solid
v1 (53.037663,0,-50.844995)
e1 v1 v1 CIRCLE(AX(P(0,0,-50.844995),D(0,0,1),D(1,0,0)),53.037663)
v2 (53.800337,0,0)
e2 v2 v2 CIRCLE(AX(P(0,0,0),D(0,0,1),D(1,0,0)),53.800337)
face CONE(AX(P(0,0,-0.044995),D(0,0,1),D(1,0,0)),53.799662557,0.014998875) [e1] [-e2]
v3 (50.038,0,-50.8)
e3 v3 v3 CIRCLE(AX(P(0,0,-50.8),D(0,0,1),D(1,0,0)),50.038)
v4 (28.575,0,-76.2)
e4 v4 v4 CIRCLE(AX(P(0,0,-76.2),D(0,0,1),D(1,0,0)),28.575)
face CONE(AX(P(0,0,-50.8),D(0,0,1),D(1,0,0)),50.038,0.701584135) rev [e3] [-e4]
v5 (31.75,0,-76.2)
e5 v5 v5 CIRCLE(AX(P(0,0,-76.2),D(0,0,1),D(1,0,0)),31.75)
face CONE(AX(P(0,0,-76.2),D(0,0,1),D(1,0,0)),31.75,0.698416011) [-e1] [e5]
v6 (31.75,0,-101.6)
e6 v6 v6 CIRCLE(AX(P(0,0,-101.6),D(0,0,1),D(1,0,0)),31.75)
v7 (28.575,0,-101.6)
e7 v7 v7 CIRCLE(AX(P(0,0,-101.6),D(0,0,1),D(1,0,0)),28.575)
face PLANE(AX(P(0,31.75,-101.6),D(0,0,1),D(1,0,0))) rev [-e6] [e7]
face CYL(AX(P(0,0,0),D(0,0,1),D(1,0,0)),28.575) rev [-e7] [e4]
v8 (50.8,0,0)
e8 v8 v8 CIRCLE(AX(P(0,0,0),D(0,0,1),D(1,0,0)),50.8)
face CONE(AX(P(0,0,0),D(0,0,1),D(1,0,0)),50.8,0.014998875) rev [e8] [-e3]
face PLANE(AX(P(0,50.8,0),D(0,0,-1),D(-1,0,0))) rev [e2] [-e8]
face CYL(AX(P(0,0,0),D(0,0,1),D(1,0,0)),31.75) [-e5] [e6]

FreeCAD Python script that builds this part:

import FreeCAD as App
import Part
import Sketcher
from FreeCAD import Vector
Q = App.Units.Quantity

doc = App.newDocument("Part")
body = doc.addObject("PartDesign::Body", "Body")

# Sketch on YZ plane
sketch1 = doc.addObject("Sketcher::SketchObject", "Sketch")
body.addObject(sketch1)
sketch1.AttachmentSupport = (doc.YZ_Plane, [""])
sketch1.MapMode = "FlatFace"
sketch1.addGeometry(Part.LineSegment(Vector(50.8, 0, 0), Vector(50.038, -50.8, 0)), False)
sketch1.addGeometry(Part.LineSegment(Vector(50.038, -50.8, 0), Vector(28.575, -76.2, 0)), False)
sketch1.addGeometry(Part.LineSegment(Vector(28.575, -76.2, 0), Vector(28.575, -101.6, 0)), False)
sketch1.addGeometry(Part.LineSegment(Vector(28.575, -101.6, 0), Vector(31.75, -101.6, 0)), False)
sketch1.addGeometry(Part.LineSegment(Vector(31.75, -101.6, 0), Vector(31.75, -76.2, 0)), False)
sketch1.addGeometry(Part.LineSegment(Vector(31.75, -76.2, 0), Vector(53.038, -50.845, 0)), False)
sketch1.addGeometry(Part.LineSegment(Vector(53.038, -50.845, 0), Vector(53.8, -0.045, 0)), False)
sketch1.addGeometry(Part.LineSegment(Vector(53.8, -0.045, 0), Vector(53.8, 0, 0)), False)
sketch1.addGeometry(Part.LineSegment(Vector(53.8, 0, 0), Vector(50.8, 0, 0)), False)
sketch1.addConstraint(Sketcher.Constraint("Coincident", 0, 2, 1, 1))
sketch1.addConstraint(Sketcher.Constraint("Coincident", 1, 2, 2, 1))
sketch1.addConstraint(Sketcher.Constraint("Coincident", 2, 2, 3, 1))
sketch1.addConstraint(Sketcher.Constraint("Coincident", 3, 2, 4, 1))
sketch1.addConstraint(Sketcher.Constraint("Coincident", 4, 2, 5, 1))
sketch1.addConstraint(Sketcher.Constraint("Coincident", 5, 2, 6, 1))
sketch1.addConstraint(Sketcher.Constraint("Coincident", 6, 2, 7, 1))
sketch1.addConstraint(Sketcher.Constraint("Coincident", 7, 2, 8, 1))
sketch1.addConstraint(Sketcher.Constraint("Coincident", 8, 2, 0, 1))
sketch1.addConstraint(Sketcher.Constraint("Vertical", 2))
sketch1.addConstraint(Sketcher.Constraint("Horizontal", 3))
sketch1.addConstraint(Sketcher.Constraint("Vertical", 4))
sketch1.addConstraint(Sketcher.Constraint("Horizontal", 8))
sketch1.addConstraint(Sketcher.Constraint("PointOnObject", 7, 2, -1))
sketch1.addConstraint(Sketcher.Constraint("Parallel", 0, 6))
sketch1.addConstraint(Sketcher.Constraint("Parallel", 6, 7))
sketch1.addConstraint(Sketcher.Constraint("Horizontal", 1, 2, 4, 2))
sketch1.addConstraint(Sketcher.Constraint("Equal", 0, 6))
sketch1.addConstraint(Sketcher.Constraint("DistanceY", 2, 2, 2, 1, Q("1 in")))
sketch1.addConstraint(Sketcher.Constraint("DistanceY", 0, 2, -1, 1, Q("2 in")))
sketch1.addConstraint(Sketcher.Constraint("DistanceY", 1, 2, -1, 1, Q("3 in")))
sketch1.addConstraint(Sketcher.Constraint("DistanceX", -1, 1, 8, 2, Q("2 in")))
sketch1.addConstraint(Sketcher.Constraint("DistanceX", 3, 1, 3, 2, Q("0.125 in")))
sketch1.addConstraint(Sketcher.Constraint("DistanceX", -1, 1, 0, 2, Q("1.97 in")))
sketch1.addConstraint(Sketcher.Constraint("DistanceX", -1, 1, 3, 2, Q("1.25 in")))
sketch1.addConstraint(Sketcher.Constraint("Distance", 7, Q("0.045 mm")))
sketch1.addConstraint(Sketcher.Constraint("DistanceX", 8, 2, 8, 1, Q("3.000337 mm")))
revolution = doc.addObject("PartDesign::Revolution", "Revolution")
body.addObject(revolution)
revolution.Profile = sketch1
revolution.ReferenceAxis = (sketch1, ["V_Axis"])
revolution.Angle = 360

doc.recompute()
